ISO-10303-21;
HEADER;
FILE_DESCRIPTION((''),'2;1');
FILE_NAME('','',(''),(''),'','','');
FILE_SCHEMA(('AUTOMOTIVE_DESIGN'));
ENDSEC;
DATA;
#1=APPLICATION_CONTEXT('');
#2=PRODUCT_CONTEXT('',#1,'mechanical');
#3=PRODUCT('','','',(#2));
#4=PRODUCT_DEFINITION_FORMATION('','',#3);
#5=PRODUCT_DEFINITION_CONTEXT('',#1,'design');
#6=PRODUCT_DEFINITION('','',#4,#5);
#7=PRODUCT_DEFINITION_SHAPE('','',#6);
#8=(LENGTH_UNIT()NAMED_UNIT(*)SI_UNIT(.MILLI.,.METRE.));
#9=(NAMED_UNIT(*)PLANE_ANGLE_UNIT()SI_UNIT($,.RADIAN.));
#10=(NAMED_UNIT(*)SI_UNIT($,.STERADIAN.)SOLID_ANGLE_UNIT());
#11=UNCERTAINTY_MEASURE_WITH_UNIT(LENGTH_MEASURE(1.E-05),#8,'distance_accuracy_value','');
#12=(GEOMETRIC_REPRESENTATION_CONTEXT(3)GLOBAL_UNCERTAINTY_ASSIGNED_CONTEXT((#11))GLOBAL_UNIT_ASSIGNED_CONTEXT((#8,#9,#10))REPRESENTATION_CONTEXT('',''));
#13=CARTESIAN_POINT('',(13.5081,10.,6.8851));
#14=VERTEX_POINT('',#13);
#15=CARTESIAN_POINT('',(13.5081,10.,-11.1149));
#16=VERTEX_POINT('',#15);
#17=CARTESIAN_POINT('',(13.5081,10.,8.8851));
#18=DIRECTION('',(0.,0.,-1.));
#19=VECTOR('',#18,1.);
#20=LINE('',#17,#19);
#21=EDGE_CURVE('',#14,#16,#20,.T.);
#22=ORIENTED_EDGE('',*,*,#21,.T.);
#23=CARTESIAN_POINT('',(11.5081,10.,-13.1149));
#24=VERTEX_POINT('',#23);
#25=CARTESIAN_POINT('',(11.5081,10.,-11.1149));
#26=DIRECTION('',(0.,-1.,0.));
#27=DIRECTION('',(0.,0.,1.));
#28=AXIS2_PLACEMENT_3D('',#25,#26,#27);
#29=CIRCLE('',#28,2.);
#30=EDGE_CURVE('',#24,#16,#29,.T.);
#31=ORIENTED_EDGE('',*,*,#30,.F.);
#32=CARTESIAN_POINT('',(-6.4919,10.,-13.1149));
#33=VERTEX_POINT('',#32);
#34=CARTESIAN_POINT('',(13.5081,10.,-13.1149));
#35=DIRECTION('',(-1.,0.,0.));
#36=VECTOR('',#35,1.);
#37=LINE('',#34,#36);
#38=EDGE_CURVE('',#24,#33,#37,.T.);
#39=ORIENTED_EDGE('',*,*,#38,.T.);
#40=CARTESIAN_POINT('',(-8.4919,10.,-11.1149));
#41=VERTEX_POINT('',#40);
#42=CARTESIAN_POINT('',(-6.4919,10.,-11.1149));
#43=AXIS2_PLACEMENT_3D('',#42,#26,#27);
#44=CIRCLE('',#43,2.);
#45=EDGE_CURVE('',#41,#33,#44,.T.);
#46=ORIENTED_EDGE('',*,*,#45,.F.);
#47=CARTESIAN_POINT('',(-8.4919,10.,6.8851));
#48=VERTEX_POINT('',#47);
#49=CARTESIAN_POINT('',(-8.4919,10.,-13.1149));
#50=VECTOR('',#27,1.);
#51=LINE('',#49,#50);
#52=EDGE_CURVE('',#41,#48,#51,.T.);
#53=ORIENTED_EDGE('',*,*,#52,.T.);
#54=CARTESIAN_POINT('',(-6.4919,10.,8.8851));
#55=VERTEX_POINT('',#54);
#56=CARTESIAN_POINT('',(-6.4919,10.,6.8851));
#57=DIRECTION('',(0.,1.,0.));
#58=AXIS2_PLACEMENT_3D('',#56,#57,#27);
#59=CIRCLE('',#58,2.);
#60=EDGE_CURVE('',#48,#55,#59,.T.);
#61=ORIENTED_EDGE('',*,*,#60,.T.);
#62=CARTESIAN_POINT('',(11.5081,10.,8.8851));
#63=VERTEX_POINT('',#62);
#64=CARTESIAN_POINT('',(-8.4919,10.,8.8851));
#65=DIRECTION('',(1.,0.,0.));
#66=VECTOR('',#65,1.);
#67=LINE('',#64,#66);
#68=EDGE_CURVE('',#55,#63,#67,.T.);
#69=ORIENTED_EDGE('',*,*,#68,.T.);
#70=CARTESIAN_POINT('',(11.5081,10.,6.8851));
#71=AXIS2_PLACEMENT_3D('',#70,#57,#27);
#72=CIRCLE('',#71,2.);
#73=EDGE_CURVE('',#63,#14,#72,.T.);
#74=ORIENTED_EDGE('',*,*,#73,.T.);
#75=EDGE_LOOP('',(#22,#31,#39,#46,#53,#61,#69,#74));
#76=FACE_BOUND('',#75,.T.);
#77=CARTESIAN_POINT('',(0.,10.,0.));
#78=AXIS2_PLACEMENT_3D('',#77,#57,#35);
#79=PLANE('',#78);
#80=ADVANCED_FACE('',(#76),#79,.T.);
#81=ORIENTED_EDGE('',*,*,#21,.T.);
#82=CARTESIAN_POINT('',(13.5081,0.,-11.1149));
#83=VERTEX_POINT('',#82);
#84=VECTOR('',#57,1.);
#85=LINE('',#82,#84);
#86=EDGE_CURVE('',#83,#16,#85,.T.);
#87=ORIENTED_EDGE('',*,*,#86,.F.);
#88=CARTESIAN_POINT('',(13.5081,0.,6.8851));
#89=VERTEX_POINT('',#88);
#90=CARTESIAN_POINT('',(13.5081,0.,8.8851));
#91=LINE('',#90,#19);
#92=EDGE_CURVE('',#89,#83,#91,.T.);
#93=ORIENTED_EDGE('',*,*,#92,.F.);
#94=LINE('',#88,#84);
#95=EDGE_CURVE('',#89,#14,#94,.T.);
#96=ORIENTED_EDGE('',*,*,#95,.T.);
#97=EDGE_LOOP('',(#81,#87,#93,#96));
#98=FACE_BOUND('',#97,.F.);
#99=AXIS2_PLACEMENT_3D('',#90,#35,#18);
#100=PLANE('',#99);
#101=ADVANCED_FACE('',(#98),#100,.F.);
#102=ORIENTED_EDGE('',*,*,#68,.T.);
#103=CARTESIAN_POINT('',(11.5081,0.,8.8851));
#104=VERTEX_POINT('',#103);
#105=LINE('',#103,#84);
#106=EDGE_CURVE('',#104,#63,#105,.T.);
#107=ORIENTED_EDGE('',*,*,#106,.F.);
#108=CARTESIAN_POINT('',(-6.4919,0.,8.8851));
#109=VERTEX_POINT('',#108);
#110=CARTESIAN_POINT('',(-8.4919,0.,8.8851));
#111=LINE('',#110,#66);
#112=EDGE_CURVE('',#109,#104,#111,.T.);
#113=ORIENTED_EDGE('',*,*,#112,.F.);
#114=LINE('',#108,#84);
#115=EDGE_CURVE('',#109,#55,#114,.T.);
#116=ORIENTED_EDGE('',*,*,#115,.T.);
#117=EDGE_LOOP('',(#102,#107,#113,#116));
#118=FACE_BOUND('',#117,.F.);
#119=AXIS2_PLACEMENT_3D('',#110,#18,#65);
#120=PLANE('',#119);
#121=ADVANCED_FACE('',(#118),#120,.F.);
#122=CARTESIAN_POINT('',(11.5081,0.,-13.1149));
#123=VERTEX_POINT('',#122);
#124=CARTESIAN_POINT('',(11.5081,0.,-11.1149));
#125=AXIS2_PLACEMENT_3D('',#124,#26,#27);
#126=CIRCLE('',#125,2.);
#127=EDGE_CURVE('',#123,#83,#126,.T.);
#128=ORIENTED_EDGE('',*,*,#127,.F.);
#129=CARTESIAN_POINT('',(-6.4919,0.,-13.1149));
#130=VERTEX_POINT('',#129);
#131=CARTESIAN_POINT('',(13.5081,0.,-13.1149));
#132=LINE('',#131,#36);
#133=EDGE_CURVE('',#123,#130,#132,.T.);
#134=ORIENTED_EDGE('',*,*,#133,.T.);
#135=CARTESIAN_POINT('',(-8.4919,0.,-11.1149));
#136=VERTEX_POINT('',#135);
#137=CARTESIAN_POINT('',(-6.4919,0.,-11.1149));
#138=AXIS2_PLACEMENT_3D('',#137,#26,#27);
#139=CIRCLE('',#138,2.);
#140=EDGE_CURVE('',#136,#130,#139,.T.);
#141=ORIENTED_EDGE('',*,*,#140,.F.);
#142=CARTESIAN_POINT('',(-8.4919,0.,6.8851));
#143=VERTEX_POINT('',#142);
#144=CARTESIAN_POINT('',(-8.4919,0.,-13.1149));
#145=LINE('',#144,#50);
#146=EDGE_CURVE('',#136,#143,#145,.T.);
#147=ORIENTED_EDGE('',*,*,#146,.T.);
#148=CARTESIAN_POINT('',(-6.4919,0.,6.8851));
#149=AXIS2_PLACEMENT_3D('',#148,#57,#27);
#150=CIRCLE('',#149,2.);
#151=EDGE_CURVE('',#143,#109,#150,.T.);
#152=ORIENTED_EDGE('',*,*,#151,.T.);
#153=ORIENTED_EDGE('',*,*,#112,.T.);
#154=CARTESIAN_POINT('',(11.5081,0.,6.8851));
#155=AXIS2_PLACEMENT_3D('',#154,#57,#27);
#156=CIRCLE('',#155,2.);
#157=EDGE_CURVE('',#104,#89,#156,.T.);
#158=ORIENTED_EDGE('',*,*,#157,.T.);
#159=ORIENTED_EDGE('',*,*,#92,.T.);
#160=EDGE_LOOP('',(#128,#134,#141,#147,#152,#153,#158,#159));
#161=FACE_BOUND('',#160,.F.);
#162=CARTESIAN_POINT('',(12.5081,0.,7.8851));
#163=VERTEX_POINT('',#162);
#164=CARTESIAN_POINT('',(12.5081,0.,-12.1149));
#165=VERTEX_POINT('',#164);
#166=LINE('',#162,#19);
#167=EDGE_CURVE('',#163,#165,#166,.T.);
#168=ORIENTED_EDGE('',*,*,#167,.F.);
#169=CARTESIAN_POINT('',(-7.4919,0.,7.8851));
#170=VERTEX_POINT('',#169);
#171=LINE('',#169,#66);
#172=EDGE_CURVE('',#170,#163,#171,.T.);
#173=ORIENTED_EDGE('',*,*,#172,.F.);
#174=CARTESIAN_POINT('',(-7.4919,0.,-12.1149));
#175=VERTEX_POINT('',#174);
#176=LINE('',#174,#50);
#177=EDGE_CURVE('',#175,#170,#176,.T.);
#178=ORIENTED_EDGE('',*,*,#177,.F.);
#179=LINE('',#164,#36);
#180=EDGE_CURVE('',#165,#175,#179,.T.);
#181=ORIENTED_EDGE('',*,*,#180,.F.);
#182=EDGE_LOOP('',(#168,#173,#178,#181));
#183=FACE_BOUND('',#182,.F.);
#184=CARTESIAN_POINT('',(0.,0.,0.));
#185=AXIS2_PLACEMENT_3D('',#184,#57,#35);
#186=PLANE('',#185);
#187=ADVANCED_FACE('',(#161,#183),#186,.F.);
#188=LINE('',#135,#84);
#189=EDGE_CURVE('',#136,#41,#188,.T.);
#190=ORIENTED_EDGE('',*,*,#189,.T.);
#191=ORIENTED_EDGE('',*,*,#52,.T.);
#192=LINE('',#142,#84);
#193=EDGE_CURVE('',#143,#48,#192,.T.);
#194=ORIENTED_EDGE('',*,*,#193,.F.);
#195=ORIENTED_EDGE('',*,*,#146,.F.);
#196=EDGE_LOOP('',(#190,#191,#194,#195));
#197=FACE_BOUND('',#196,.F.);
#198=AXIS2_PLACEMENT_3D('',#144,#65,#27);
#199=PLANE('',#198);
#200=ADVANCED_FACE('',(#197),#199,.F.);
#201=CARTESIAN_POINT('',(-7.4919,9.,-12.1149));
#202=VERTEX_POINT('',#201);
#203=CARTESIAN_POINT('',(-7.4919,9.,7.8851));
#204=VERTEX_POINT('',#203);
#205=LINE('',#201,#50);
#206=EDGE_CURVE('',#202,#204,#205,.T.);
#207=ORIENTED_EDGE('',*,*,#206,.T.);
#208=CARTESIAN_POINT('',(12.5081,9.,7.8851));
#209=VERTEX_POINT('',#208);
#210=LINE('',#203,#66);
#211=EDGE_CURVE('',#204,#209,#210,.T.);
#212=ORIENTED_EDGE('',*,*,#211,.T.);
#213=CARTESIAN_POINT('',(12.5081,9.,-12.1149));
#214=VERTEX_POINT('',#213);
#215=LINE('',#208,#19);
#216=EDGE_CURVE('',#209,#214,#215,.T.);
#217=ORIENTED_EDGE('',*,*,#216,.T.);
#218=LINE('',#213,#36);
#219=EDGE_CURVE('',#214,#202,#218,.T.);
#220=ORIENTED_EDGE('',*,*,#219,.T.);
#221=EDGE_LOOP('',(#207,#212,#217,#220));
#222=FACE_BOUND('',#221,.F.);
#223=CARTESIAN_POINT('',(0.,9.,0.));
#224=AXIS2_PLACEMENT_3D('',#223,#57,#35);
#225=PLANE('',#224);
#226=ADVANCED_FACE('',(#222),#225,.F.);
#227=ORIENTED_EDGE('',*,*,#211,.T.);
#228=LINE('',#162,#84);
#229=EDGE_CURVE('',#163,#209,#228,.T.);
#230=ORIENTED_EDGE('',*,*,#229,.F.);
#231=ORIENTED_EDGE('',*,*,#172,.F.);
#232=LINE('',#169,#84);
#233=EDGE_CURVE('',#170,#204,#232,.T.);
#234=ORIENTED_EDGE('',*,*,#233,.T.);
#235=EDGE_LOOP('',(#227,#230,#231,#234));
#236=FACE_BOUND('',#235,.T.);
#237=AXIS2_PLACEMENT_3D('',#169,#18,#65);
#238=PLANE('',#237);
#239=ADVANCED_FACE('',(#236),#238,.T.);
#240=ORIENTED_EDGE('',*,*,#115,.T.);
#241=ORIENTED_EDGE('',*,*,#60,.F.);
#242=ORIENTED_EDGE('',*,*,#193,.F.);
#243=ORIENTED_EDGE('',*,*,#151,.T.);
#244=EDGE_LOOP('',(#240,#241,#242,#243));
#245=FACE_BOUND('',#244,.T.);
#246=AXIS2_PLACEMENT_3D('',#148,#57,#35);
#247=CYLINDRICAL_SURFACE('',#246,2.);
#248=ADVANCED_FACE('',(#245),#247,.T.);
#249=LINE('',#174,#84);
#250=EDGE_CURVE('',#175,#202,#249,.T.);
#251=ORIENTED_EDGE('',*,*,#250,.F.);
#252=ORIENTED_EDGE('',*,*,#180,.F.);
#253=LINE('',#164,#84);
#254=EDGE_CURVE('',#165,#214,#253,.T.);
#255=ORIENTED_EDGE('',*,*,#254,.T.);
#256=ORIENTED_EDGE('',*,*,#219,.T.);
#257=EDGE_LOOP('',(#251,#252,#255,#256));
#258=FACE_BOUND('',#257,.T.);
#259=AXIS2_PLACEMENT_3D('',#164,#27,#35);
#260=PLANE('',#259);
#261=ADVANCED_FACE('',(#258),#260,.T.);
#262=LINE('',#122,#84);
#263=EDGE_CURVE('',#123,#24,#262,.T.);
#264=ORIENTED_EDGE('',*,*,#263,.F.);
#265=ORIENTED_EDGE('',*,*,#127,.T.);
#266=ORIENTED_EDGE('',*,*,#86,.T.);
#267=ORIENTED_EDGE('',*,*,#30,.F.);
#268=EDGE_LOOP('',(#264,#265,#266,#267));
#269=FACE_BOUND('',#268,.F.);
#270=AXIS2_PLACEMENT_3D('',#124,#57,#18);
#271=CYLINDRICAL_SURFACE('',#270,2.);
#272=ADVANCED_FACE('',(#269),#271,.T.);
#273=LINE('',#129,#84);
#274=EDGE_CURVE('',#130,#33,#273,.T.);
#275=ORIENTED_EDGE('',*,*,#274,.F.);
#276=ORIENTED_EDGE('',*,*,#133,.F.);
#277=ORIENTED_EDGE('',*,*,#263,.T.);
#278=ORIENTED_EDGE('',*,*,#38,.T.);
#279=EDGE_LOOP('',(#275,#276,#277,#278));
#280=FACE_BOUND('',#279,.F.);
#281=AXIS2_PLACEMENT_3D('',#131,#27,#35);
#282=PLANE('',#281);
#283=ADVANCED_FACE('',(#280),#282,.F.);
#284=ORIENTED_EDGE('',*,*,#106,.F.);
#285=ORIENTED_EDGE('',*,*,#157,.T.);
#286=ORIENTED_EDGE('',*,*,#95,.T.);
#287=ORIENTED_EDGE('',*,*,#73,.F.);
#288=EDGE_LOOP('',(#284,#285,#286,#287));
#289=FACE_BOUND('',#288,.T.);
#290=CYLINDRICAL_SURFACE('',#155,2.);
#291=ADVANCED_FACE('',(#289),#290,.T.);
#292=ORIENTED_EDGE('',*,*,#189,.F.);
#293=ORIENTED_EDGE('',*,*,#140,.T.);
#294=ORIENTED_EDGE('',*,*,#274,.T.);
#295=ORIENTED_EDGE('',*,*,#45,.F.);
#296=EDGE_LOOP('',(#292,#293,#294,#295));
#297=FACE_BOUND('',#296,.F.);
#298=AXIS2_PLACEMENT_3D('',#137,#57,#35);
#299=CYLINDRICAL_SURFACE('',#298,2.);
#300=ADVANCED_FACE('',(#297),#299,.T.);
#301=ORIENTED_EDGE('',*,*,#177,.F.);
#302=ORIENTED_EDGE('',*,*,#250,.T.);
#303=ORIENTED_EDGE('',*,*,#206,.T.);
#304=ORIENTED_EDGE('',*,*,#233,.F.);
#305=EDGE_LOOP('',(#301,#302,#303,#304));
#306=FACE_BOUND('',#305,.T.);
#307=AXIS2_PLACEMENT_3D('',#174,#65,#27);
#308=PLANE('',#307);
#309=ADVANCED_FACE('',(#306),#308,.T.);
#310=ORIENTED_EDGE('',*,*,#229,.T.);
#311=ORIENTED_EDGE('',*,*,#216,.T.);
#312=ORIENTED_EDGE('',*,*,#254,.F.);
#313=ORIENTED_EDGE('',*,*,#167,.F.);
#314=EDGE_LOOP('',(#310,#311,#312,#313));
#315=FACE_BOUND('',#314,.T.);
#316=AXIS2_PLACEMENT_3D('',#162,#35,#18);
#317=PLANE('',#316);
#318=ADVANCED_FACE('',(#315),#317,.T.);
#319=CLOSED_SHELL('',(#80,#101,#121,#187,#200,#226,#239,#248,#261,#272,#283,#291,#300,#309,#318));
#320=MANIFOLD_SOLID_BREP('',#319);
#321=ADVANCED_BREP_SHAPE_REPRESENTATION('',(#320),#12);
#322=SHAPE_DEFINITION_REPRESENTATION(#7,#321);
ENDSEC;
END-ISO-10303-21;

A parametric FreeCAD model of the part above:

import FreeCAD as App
import Part
import Sketcher
from FreeCAD import Vector


def edges_at(feature, points):
    """Names of the edges that pass closest to the given points."""
    edges = feature.Shape.Edges
    near = lambda p: min(range(len(edges)), key=lambda i: edges[i].distToShape(Part.Vertex(*p))[0])
    return sorted({f"Edge{near(p) + 1}" for p in points})


def add_polygon(sketch, points):
    """Adds a closed chain of lines whose ends are joined by coincident constraints."""
    first, n = sketch.GeometryCount, len(points)
    for a, b in zip(points, points[1:] + points[:1]):
        sketch.addGeometry(Part.LineSegment(App.Vector(*a, 0), App.Vector(*b, 0)), False)
    for i in range(n):
        sketch.addConstraint(Sketcher.Constraint("Coincident", first + i, 2, first + (i + 1) % n, 1))

doc = App.newDocument("Part")
body = doc.addObject("PartDesign::Body", "Body")

sketch1 = doc.addObject("Sketcher::SketchObject", "Sketch")
body.addObject(sketch1)
sketch1.AttachmentSupport = (doc.XZ_Plane, [""])
sketch1.MapMode = "FlatFace"
add_polygon(sketch1, [(-8.4919, -13.1149), (-8.4919, 8.8851), (13.5081, 8.8851), (13.5081, -13.1149)])
sketch1.addConstraint(Sketcher.Constraint("Vertical", 0))
sketch1.addConstraint(Sketcher.Constraint("Horizontal", 1))
sketch1.addConstraint(Sketcher.Constraint("Vertical", 2))
sketch1.addConstraint(Sketcher.Constraint("Horizontal", 3))
sketch1.addConstraint(Sketcher.Constraint("Equal", 3, 0))
sketch1.addConstraint(Sketcher.Constraint("DistanceX", 1, 1, 1, 2, 22.0))
sketch1.addConstraint(Sketcher.Constraint("DistanceX", 0, 2, -1, 1, 8.492))
sketch1.addConstraint(Sketcher.Constraint("DistanceY", -1, 1, 0, 2, 8.885))
pad1 = doc.addObject("PartDesign::Pad", "Pad")
body.addObject(pad1)
pad1.Profile = sketch1
pad1.Length = 10
pad1.Reversed = True

sketch2 = doc.addObject("Sketcher::SketchObject", "Sketch001")
body.addObject(sketch2)
sketch2.AttachmentSupport = (doc.XZ_Plane, [""])
sketch2.MapMode = "FlatFace"
add_polygon(sketch2, [(-7.4919, -12.1149), (-7.4919, 7.8851), (12.5081, 7.8851), (12.5081, -12.1149)])
sketch2.addConstraint(Sketcher.Constraint("Vertical", 0))
sketch2.addConstraint(Sketcher.Constraint("Horizontal", 1))
sketch2.addConstraint(Sketcher.Constraint("Vertical", 2))
sketch2.addConstraint(Sketcher.Constraint("Horizontal", 3))
sketch2.addConstraint(Sketcher.Constraint("Equal", 3, 0))
sketch2.addConstraint(Sketcher.Constraint("DistanceX", 1, 1, 1, 2, 20.0))
sketch2.addConstraint(Sketcher.Constraint("DistanceX", 0, 2, -1, 1, 7.492))
sketch2.addConstraint(Sketcher.Constraint("DistanceY", -1, 1, 0, 2, 7.885))
pocket1 = doc.addObject("PartDesign::Pocket", "Pocket")
body.addObject(pocket1)
pocket1.Profile = sketch2
pocket1.Length = 9
doc.recompute()

fillet = doc.addObject("PartDesign::Fillet", "Fillet")
body.addObject(fillet)
fillet.Base = (pocket1, edges_at(pocket1, [
    (-8.492, 5, 8.885),
    (-8.492, 5, -13.115),
    (13.508, 5, -13.115),
    (13.508, 5, 8.885),
]))
fillet.Radius = 2

doc.recompute()
